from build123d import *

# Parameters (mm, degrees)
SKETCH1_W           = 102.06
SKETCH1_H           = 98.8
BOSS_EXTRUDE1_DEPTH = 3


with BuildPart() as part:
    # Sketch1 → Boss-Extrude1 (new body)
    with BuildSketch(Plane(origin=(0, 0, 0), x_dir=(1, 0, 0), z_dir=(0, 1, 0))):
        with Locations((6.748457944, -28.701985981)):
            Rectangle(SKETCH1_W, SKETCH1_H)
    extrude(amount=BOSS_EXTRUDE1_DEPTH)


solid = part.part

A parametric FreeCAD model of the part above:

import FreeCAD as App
import Part
import Sketcher

doc = App.newDocument("Part")
body = doc.addObject("PartDesign::Body", "Body")

# Sketch on XZ plane
sketch1 = body.newObject("Sketcher::SketchObject", "Sketch")
sketch1.AttachmentSupport = (doc.getObject("XZ_Plane"), [""])
sketch1.MapMode = "FlatFace"
sketch1.addGeometry(Part.LineSegment(App.Vector(-44, -21, 0), App.Vector(-44, 78, 0)), False)
sketch1.addGeometry(Part.LineSegment(App.Vector(-44, 78, 0), App.Vector(58, 78, 0)), False)
sketch1.addGeometry(Part.LineSegment(App.Vector(58, 78, 0), App.Vector(58, -21, 0)), False)
sketch1.addGeometry(Part.LineSegment(App.Vector(58, -21, 0), App.Vector(-44, -21, 0)), False)
sketch1.addConstraint(Sketcher.Constraint("Coincident", 0, 2, 1, 1))
sketch1.addConstraint(Sketcher.Constraint("Coincident", 1, 2, 2, 1))
sketch1.addConstraint(Sketcher.Constraint("Coincident", 2, 2, 3, 1))
sketch1.addConstraint(Sketcher.Constraint("Coincident", 3, 2, 0, 1))
sketch1.addConstraint(Sketcher.Constraint("Vertical", 0))
sketch1.addConstraint(Sketcher.Constraint("Horizontal", 1))
sketch1.addConstraint(Sketcher.Constraint("Vertical", 2))
sketch1.addConstraint(Sketcher.Constraint("Horizontal", 3))
sketch1.addConstraint(Sketcher.Constraint("DistanceY", 0, 1, 0, 2, 98.8))
sketch1.addConstraint(Sketcher.Constraint("DistanceX", 1, 1, 1, 2, 102.06))
sketch1.addConstraint(Sketcher.Constraint("DistanceX", 0, 2, -1, 1, 44.281542))
sketch1.addConstraint(Sketcher.Constraint("DistanceY", -1, 1, 0, 2, 78.101986))
pad1 = body.newObject("PartDesign::Pad", "Pad")
pad1.Profile = sketch1
pad1.Length = 3
pad1.Reversed = True

doc.recompute()
